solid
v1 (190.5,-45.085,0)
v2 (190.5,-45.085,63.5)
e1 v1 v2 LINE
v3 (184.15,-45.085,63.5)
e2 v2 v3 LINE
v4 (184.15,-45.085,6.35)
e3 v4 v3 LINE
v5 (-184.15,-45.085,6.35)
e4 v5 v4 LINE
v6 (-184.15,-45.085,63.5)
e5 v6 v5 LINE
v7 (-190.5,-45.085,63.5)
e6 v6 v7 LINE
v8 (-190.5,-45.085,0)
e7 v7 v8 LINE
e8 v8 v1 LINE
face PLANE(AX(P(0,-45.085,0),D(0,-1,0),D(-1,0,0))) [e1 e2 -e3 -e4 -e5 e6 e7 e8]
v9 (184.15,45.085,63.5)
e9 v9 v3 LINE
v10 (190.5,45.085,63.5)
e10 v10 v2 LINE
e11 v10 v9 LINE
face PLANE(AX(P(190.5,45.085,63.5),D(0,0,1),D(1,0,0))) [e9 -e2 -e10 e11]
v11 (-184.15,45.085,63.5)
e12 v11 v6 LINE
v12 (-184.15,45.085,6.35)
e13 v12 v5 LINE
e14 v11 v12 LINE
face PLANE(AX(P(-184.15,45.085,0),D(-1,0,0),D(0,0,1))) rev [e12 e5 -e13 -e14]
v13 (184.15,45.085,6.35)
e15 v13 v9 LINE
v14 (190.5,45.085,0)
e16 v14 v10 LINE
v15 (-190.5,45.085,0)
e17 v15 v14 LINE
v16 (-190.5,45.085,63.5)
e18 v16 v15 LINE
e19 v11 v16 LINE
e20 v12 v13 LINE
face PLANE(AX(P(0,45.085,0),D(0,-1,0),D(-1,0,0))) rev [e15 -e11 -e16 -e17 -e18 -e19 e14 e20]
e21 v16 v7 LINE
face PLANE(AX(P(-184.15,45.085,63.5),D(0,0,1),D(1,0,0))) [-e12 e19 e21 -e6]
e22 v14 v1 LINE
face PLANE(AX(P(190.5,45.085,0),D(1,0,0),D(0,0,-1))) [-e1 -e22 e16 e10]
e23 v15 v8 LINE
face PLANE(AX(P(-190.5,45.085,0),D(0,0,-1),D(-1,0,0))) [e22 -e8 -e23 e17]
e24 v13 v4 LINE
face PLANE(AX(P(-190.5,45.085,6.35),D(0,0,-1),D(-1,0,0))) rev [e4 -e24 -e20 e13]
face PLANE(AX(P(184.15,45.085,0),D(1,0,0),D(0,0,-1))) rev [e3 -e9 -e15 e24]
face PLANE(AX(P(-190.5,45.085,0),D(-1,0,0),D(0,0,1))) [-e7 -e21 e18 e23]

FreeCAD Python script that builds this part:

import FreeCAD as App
import Part
import Sketcher

V = App.Vector
Q = App.Units.Quantity

doc = App.newDocument("Part")
params = doc.addObject("Spreadsheet::Sheet", "Params")
for row, (alias, value) in enumerate([
    ("sketch1_width", "15 in"),
    ("sketch1_width2", "14.5 in"),
    ("sketch1_height", "2.5 in"),
    ("sketch1_height2", "2.25 in"),
    ("pad1_length", "3.55 in"),
], start=1):
    params.set(f"A{row}", alias)
    params.set(f"B{row}", "=" + value)
    params.setAlias(f"B{row}", alias)

body = doc.addObject("PartDesign::Body", "Body")

# Sketch on XZ plane
sketch1 = doc.addObject("Sketcher::SketchObject", "Sketch")
body.addObject(sketch1)
sketch1.AttachmentSupport = (doc.XZ_Plane, [""])
sketch1.MapMode = "FlatFace"
sketch1.addGeometry(Part.LineSegment(V(-190, 0, 0), V(-190, 64, 0)), False)
sketch1.addGeometry(Part.LineSegment(V(-190, 64, 0), V(-184, 64, 0)), False)
sketch1.addGeometry(Part.LineSegment(V(-184, 64, 0), V(-184, 6, 0)), False)
sketch1.addGeometry(Part.LineSegment(V(-184, 6, 0), V(184, 6, 0)), False)
sketch1.addGeometry(Part.LineSegment(V(184, 6, 0), V(184, 64, 0)), False)
sketch1.addGeometry(Part.LineSegment(V(184, 64, 0), V(190, 64, 0)), False)
sketch1.addGeometry(Part.LineSegment(V(190, 64, 0), V(190, 0, 0)), False)
sketch1.addGeometry(Part.LineSegment(V(190, 0, 0), V(-190, 0, 0)), False)
sketch1.addConstraint(Sketcher.Constraint("Coincident", 0, 2, 1, 1))
sketch1.addConstraint(Sketcher.Constraint("Coincident", 1, 2, 2, 1))
sketch1.addConstraint(Sketcher.Constraint("Coincident", 2, 2, 3, 1))
sketch1.addConstraint(Sketcher.Constraint("Coincident", 3, 2, 4, 1))
sketch1.addConstraint(Sketcher.Constraint("Coincident", 4, 2, 5, 1))
sketch1.addConstraint(Sketcher.Constraint("Coincident", 5, 2, 6, 1))
sketch1.addConstraint(Sketcher.Constraint("Coincident", 6, 2, 7, 1))
sketch1.addConstraint(Sketcher.Constraint("Coincident", 7, 2, 0, 1))
sketch1.addConstraint(Sketcher.Constraint("Vertical", 0))
sketch1.addConstraint(Sketcher.Constraint("Horizontal", 1))
sketch1.addConstraint(Sketcher.Constraint("Vertical", 2))
sketch1.addConstraint(Sketcher.Constraint("Horizontal", 3))
sketch1.addConstraint(Sketcher.Constraint("Vertical", 4))
sketch1.addConstraint(Sketcher.Constraint("Horizontal", 5))
sketch1.addConstraint(Sketcher.Constraint("Vertical", 6))
sketch1.addConstraint(Sketcher.Constraint("Horizontal", 7))
sketch1.addConstraint(Sketcher.Constraint("Symmetric", 6, 2, 7, 2, -1, 1))
sketch1.addConstraint(Sketcher.Constraint("Symmetric", 1, 2, 4, 2, -2))
sketch1.addConstraint(Sketcher.Constraint("DistanceX", 7, 2, 7, 1, Q("15 in")))
sketch1.addConstraint(Sketcher.Constraint("DistanceX", 3, 1, 3, 2, Q("14.5 in")))
sketch1.addConstraint(Sketcher.Constraint("DistanceY", 0, 1, 0, 2, Q("2.5 in")))
sketch1.addConstraint(Sketcher.Constraint("DistanceY", 2, 2, 2, 1, Q("2.25 in")))
sketch1.setExpression("Constraints[18]", "Params.sketch1_width")
sketch1.setExpression("Constraints[19]", "Params.sketch1_width2")
sketch1.setExpression("Constraints[20]", "Params.sketch1_height")
sketch1.setExpression("Constraints[21]", "Params.sketch1_height2")
pad1 = doc.addObject("PartDesign::Pad", "Pad")
body.addObject(pad1)
pad1.Profile = sketch1
pad1.setExpression("Length", "Params.pad1_length")
pad1.Midplane = True

doc.recompute()
